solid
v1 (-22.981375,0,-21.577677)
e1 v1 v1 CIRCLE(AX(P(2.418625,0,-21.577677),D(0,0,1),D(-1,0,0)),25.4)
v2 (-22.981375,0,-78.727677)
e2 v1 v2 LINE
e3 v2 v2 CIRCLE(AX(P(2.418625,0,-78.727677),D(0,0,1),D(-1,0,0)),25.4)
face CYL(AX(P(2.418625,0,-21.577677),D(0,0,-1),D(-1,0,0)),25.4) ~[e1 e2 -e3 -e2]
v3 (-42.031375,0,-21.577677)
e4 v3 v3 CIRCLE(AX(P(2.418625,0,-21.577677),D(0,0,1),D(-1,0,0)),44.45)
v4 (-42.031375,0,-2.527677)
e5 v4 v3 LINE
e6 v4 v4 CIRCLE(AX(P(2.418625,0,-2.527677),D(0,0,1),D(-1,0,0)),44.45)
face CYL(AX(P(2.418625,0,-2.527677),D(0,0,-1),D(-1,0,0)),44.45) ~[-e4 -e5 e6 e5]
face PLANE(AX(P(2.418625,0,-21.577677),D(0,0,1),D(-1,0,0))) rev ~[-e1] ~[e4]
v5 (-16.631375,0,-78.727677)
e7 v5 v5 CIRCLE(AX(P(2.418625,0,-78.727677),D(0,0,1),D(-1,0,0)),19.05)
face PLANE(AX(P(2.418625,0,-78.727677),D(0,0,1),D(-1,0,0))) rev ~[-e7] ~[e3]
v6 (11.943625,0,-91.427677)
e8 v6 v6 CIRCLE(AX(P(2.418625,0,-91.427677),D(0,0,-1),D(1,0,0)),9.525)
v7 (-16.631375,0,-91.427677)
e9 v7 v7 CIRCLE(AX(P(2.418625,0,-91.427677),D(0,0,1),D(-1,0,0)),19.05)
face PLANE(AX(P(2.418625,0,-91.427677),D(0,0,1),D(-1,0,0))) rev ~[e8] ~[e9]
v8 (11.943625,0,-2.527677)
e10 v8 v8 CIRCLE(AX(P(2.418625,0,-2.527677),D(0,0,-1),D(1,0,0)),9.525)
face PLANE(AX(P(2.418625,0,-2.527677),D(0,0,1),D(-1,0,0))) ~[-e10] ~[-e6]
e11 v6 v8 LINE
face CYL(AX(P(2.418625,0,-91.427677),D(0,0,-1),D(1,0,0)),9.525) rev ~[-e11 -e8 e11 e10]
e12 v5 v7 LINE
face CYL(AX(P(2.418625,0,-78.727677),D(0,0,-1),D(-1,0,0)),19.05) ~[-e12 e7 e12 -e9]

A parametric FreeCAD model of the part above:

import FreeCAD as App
import Part
import Sketcher
from FreeCAD import Vector
Q = App.Units.Quantity


def add_polygon(sketch, points):
    """Adds a closed chain of lines whose ends are joined by coincident constraints."""
    first, n = sketch.GeometryCount, len(points)
    for a, b in zip(points, points[1:] + points[:1]):
        sketch.addGeometry(Part.LineSegment(App.Vector(*a, 0), App.Vector(*b, 0)), False)
    for i in range(n):
        sketch.addConstraint(Sketcher.Constraint("Coincident", first + i, 2, first + (i + 1) % n, 1))

doc = App.newDocument("Part")
params = doc.addObject("Spreadsheet::Sheet", "Params")
for row, (alias, value) in enumerate([
    ("sketch1_height", "3.5 in"),
    ("sketch1_height2", "0.5 in"),
    ("sketch1_width", "0.75 in"),
    ("revolution_angle", "360 deg"),
    ("sketch2_diameter", "0.75 in"),
    ("pocket1_length", "3.5 in"),
], start=1):
    params.set(f"A{row}", alias)
    params.set(f"B{row}", "=" + value)
    params.setAlias(f"B{row}", alias)

body = doc.addObject("PartDesign::Body", "Body")

# Sketch on XZ plane
sketch1 = body.newObject("Sketcher::SketchObject", "Sketch")
sketch1.AttachmentSupport = (doc.getObject("XZ_Plane"), [""])
sketch1.MapMode = "FlatFace"
add_polygon(sketch1, [(-17, -91), (2, -91), (2, -3), (-42, -3), (-42, -22), (-23, -22), (-23, -79), (-17, -79)])  # lines 0-7
sketch1.addGeometry(Part.LineSegment(Vector(2, -91, 0), Vector(2, -3, 0)), True)  # axis
sketch1.addConstraint([
    Sketcher.Constraint("Horizontal", 0),
    Sketcher.Constraint("Vertical", 1),
    Sketcher.Constraint("Horizontal", 2),
    Sketcher.Constraint("Vertical", 3),
    Sketcher.Constraint("Horizontal", 4),
    Sketcher.Constraint("Vertical", 5),
    Sketcher.Constraint("Horizontal", 6),
    Sketcher.Constraint("Vertical", 7),
    Sketcher.Constraint("Vertical", 8),
    Sketcher.Constraint("Coincident", 8, 1, 0, 2),
    Sketcher.Constraint("Horizontal", 2, 2, 8, 2),
    Sketcher.Constraint("Equal", 0, 4),
    Sketcher.Constraint("Equal", 4, 3),
    Sketcher.Constraint("DistanceY", 1, 1, 1, 2, Q("3.5 in")),
    Sketcher.Constraint("DistanceY", 7, 2, 7, 1, Q("0.5 in")),
    Sketcher.Constraint("DistanceX", 4, 2, 1, 2, Q("1 in")),
    Sketcher.Constraint("DistanceX", 0, 1, 0, 2, Q("0.75 in")),
    Sketcher.Constraint("DistanceX", -1, 1, 0, 2, Q("2.418625 mm")),
    Sketcher.Constraint("DistanceY", 0, 2, -1, 1, Q("91.427677 mm")),
])
sketch1.setExpression("Constraints[21]", "Params.sketch1_height")
sketch1.setExpression("Constraints[22]", "Params.sketch1_height2")
sketch1.setExpression("Constraints[24]", "Params.sketch1_width")
revolution = body.newObject("PartDesign::Revolution", "Revolution")
revolution.Profile = sketch1
revolution.ReferenceAxis = (sketch1, ["Axis0"])
revolution.setExpression("Angle", "Params.revolution_angle")

# Sketch on XY plane
sketch2 = body.newObject("Sketcher::SketchObject", "Sketch001")
sketch2.AttachmentSupport = (doc.getObject("XY_Plane"), [""])
sketch2.MapMode = "FlatFace"
sketch2.AttachmentOffset = App.Placement(Vector(0, 0, -91.427677), App.Rotation())
sketch2.addGeometry(Part.Circle(Vector(2, 0, 0), Vector(0, 0, 1), 10), False)
sketch2.addConstraint([
    Sketcher.Constraint("PointOnObject", 0, 3, -1),
    Sketcher.Constraint("Diameter", 0, Q("0.75 in")),
    Sketcher.Constraint("DistanceX", -1, 1, 0, 3, Q("2.418625 mm")),
])
sketch2.setExpression("Constraints[1]", "Params.sketch2_diameter")
pocket1 = body.newObject("PartDesign::Pocket", "Pocket")
pocket1.Profile = sketch2
pocket1.setExpression("Length", "Params.pocket1_length")
pocket1.Reversed = True

doc.recompute()
